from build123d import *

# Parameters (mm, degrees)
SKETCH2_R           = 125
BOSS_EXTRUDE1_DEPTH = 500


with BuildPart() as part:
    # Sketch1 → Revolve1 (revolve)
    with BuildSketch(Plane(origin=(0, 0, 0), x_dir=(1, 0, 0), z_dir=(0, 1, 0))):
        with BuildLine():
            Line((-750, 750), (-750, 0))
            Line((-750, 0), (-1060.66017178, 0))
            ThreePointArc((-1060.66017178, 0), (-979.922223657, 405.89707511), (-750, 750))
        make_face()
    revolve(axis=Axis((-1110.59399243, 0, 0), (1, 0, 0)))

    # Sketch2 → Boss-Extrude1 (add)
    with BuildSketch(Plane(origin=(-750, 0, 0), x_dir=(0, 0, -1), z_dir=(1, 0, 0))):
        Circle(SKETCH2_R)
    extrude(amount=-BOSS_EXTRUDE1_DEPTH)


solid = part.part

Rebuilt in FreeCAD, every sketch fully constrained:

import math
import FreeCAD as App
import Part
import Sketcher

V = App.Vector

doc = App.newDocument("Part")
params = doc.addObject("Spreadsheet::Sheet", "Params")
for row, (alias, value) in enumerate([
    ("sketch1_height", "750 mm"),
    ("revolution_angle", "360 deg"),
    ("sketch2_diameter", "250 mm"),
    ("pad1_length", "500 mm"),
], start=1):
    params.set(f"A{row}", alias)
    params.set(f"B{row}", "=" + value)
    params.setAlias(f"B{row}", alias)

body = doc.addObject("PartDesign::Body", "Body")

# Sketch on XZ plane
sketch1 = body.newObject("Sketcher::SketchObject", "Sketch")
sketch1.AttachmentSupport = (doc.getObject("XZ_Plane"), [""])
sketch1.MapMode = "FlatFace"
sketch1.addGeometry([
    Part.LineSegment(V(-750, 0, 0), V(-750, -750, 0)),
    Part.ArcOfCircle(Part.Circle(V(0, 0, 0), V(0, 0, 1), 1061), math.radians(-180), math.radians(-135)),
    Part.LineSegment(V(-1061, 0, 0), V(-750, 0, 0)),
], False)
sketch1.addConstraint([
    Sketcher.Constraint("Coincident", 0, 2, 1, 2),
    Sketcher.Constraint("Coincident", 1, 1, 2, 1),
    Sketcher.Constraint("Coincident", 2, 2, 0, 1),
    Sketcher.Constraint("Vertical", 0),
    Sketcher.Constraint("Horizontal", 2),
    Sketcher.Constraint("Coincident", 1, 3, -1, 1),
    Sketcher.Constraint("PointOnObject", 2, 2, -1),
    Sketcher.Constraint("DistanceY", 0, 2, 0, 1, 750.0),
    Sketcher.Constraint("DistanceX", 0, 2, -1, 1, 750.0),
])
sketch1.setExpression("Constraints[7]", "Params.sketch1_height")
revolution = body.newObject("PartDesign::Revolution", "Revolution")
revolution.Profile = sketch1
revolution.ReferenceAxis = (sketch1, ["H_Axis"])
revolution.setExpression("Angle", "Params.revolution_angle")

# Sketch on YZ plane
sketch2 = body.newObject("Sketcher::SketchObject", "Sketch001")
sketch2.AttachmentSupport = (doc.getObject("YZ_Plane"), [""])
sketch2.MapMode = "FlatFace"
sketch2.AttachmentOffset = App.Placement(V(0, 0, -750), App.Rotation())
sketch2.addGeometry(Part.Circle(V(0, 0, 0), V(0, 0, 1), 125), False)
sketch2.addConstraint([
    Sketcher.Constraint("Coincident", 0, 3, -1, 1),
    Sketcher.Constraint("Diameter", 0, 250.0),
])
sketch2.setExpression("Constraints[1]", "Params.sketch2_diameter")
pad1 = body.newObject("PartDesign::Pad", "Pad")
pad1.Profile = sketch2
pad1.setExpression("Length", "Params.pad1_length")
pad1.Reversed = True

doc.recompute()
